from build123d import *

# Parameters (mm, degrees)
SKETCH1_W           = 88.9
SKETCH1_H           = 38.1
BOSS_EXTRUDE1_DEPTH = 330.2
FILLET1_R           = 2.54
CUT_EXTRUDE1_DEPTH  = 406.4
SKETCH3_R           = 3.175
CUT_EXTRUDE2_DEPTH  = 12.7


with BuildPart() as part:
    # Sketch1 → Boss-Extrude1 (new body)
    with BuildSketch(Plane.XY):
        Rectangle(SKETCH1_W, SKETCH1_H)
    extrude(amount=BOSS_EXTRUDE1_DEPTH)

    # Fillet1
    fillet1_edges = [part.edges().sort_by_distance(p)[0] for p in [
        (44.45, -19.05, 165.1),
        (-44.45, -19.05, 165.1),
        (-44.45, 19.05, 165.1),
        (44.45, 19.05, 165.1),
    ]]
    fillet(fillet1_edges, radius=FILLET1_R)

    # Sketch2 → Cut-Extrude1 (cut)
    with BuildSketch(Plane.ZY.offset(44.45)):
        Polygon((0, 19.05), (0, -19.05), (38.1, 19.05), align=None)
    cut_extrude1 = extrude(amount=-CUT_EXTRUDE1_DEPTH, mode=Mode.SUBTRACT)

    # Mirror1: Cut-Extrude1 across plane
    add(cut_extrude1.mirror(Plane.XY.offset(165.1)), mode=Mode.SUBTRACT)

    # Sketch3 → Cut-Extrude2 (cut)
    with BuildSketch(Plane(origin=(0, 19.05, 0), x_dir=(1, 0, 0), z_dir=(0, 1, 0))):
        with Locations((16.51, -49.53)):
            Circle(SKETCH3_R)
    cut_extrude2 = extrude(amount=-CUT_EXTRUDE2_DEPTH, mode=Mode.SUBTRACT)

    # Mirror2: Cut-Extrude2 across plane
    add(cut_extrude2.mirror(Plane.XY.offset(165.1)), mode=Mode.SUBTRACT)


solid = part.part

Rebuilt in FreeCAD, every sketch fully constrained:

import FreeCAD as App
import Part
import Sketcher

V = App.Vector
Q = App.Units.Quantity


def edges_at(feature, points):
    """Names of the edges that pass closest to the given points."""
    edges = feature.Shape.Edges
    near = lambda p: min(range(len(edges)), key=lambda i: edges[i].distToShape(Part.Vertex(*p))[0])
    return sorted({f"Edge{near(p) + 1}" for p in points})


def add_polygon(sketch, points):
    """Adds a closed chain of lines whose ends are joined by coincident constraints."""
    first, n = sketch.GeometryCount, len(points)
    for a, b in zip(points, points[1:] + points[:1]):
        sketch.addGeometry(Part.LineSegment(App.Vector(*a, 0), App.Vector(*b, 0)), False)
    for i in range(n):
        sketch.addConstraint(Sketcher.Constraint("Coincident", first + i, 2, first + (i + 1) % n, 1))

doc = App.newDocument("Part")
params = doc.addObject("Spreadsheet::Sheet", "Params")
for row, (alias, value) in enumerate([
    ("sketch1_width", "3.5 in"),
    ("sketch1_height", "1.5 in"),
    ("pad1_length", "13 in"),
    ("fillet_radius", "0.1 in"),
    ("sketch2_width", "1.5 in"),
    ("pocket1_length", "16 in"),
    ("sketch3_diameter", "0.25 in"),
    ("pocket2_length", "0.5 in"),
], start=1):
    params.set(f"A{row}", alias)
    params.set(f"B{row}", "=" + value)
    params.setAlias(f"B{row}", alias)

body = doc.addObject("PartDesign::Body", "Body")

sketch1 = body.newObject("Sketcher::SketchObject", "Sketch")
sketch1.AttachmentSupport = (doc.getObject("XY_Plane"), [""])
sketch1.MapMode = "FlatFace"
add_polygon(sketch1, [(-44, 19), (-44, -19), (44, -19), (44, 19)])
sketch1.addConstraint([
    Sketcher.Constraint("Vertical", 0),
    Sketcher.Constraint("Horizontal", 1),
    Sketcher.Constraint("Vertical", 2),
    Sketcher.Constraint("Horizontal", 3),
    Sketcher.Constraint("Symmetric", 0, 2, 2, 2, -1, 1),
    Sketcher.Constraint("DistanceX", 1, 1, 1, 2, Q("3.5 in")),
    Sketcher.Constraint("DistanceY", 0, 2, 0, 1, Q("1.5 in")),
])
sketch1.setExpression("Constraints[9]", "Params.sketch1_width")
sketch1.setExpression("Constraints[10]", "Params.sketch1_height")
pad1 = body.newObject("PartDesign::Pad", "Pad")
pad1.Profile = sketch1
pad1.setExpression("Length", "Params.pad1_length")
doc.recompute()

fillet = body.newObject("PartDesign::Fillet", "Fillet")
fillet.Base = (pad1, edges_at(pad1, [
    (44.45, -19.05, 165.1),
    (-44.45, -19.05, 165.1),
    (-44.45, 19.05, 165.1),
    (44.45, 19.05, 165.1),
]))
fillet.setExpression("Radius", "Params.fillet_radius")

sketch2 = body.newObject("Sketcher::SketchObject", "Sketch001")
sketch2.AttachmentSupport = (doc.getObject("YZ_Plane"), [""])
sketch2.MapMode = "FlatFace"
sketch2.AttachmentOffset = App.Placement(V(0, 0, -1.75 * 25.4), App.Rotation())
add_polygon(sketch2, [(19, 0), (-19, 0), (19, 38)])
sketch2.addConstraint([
    Sketcher.Constraint("Horizontal", 0),
    Sketcher.Constraint("Vertical", 2),
    Sketcher.Constraint("Symmetric", 0, 2, 2, 2, -1, 1),
    Sketcher.Constraint("Equal", 0, 2),
    Sketcher.Constraint("DistanceX", 0, 2, 0, 1, Q("1.5 in")),
])
sketch2.setExpression("Constraints[7]", "Params.sketch2_width")
pocket1 = body.newObject("PartDesign::Pocket", "Pocket")
pocket1.Profile = sketch2
pocket1.setExpression("Length", "Params.pocket1_length")
pocket1.Reversed = True
doc.recompute()

datumplane = body.newObject("PartDesign::Plane", "DatumPlane")
datumplane.AttachmentSupport = (doc.getObject("XY_Plane"), [""])
datumplane.MapMode = "FlatFace"
datumplane.AttachmentOffset = App.Placement(V(0, 0, 6.5 * 25.4), App.Rotation())
mirrored = body.newObject("PartDesign::Mirrored", "Mirrored")
mirrored.Originals = [pocket1]
mirrored.MirrorPlane = (datumplane, [""])
body.Tip = mirrored

sketch3 = body.newObject("Sketcher::SketchObject", "Sketch002")
sketch3.AttachmentSupport = (doc.getObject("XZ_Plane"), [""])
sketch3.MapMode = "FlatFace"
sketch3.AttachmentOffset = App.Placement(V(0, 0, -0.75 * 25.4), App.Rotation())
sketch3.addGeometry(Part.Circle(V(16.5, 49.5, 0), V(0, 0, 1), 3.2), False)
sketch3.addConstraint([
    Sketcher.Constraint("Diameter", 0, Q("0.25 in")),
    Sketcher.Constraint("DistanceX", -1, 1, 0, 3, Q("0.65 in")),
    Sketcher.Constraint("DistanceY", -1, 1, 0, 3, Q("1.95 in")),
])
sketch3.setExpression("Constraints[0]", "Params.sketch3_diameter")
pocket2 = body.newObject("PartDesign::Pocket", "Pocket001")
pocket2.Profile = sketch3
pocket2.setExpression("Length", "Params.pocket2_length")
pocket2.Reversed = True
doc.recompute()

datumplane2 = body.newObject("PartDesign::Plane", "DatumPlane001")
datumplane2.AttachmentSupport = (doc.getObject("XY_Plane"), [""])
datumplane2.MapMode = "FlatFace"
datumplane2.AttachmentOffset = App.Placement(V(0, 0, 6.5 * 25.4), App.Rotation())
mirrored2 = body.newObject("PartDesign::Mirrored", "Mirrored001")
mirrored2.Originals = [pocket2]
mirrored2.MirrorPlane = (datumplane2, [""])
body.Tip = mirrored2

doc.recompute()
